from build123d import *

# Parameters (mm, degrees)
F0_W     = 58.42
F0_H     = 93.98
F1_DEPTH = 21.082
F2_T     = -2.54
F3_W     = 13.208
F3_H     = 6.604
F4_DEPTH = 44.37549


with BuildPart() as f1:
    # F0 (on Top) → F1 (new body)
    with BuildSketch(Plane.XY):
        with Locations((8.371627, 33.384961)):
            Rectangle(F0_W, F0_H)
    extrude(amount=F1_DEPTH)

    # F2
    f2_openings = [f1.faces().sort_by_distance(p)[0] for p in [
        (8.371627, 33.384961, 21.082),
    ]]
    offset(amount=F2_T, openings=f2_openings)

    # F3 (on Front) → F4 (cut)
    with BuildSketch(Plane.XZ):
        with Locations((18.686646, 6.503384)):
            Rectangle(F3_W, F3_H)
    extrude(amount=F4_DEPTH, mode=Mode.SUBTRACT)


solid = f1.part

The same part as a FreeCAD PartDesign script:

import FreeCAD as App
import Part
import Sketcher
from FreeCAD import Vector
Q = App.Units.Quantity


def faces_at(feature, points):
    """Names of the faces that lie closest to the given points."""
    faces = feature.Shape.Faces
    near = lambda p: min(range(len(faces)), key=lambda i: faces[i].distToShape(Part.Vertex(*p))[0])
    return sorted({f"Face{near(p) + 1}" for p in points})

doc = App.newDocument("Part")
body = doc.addObject("PartDesign::Body", "Body")

# Sketch on XY plane
sketch1 = body.newObject("Sketcher::SketchObject", "Sketch")
sketch1.AttachmentSupport = (doc.getObject("XY_Plane"), [""])
sketch1.MapMode = "FlatFace"
sketch1.addGeometry(Part.LineSegment(Vector(-21, 80, 0), Vector(-21, -14, 0)), False)
sketch1.addGeometry(Part.LineSegment(Vector(-21, -14, 0), Vector(38, -14, 0)), False)
sketch1.addGeometry(Part.LineSegment(Vector(38, -14, 0), Vector(38, 80, 0)), False)
sketch1.addGeometry(Part.LineSegment(Vector(38, 80, 0), Vector(-21, 80, 0)), False)
sketch1.addConstraint(Sketcher.Constraint("Coincident", 0, 2, 1, 1))
sketch1.addConstraint(Sketcher.Constraint("Coincident", 1, 2, 2, 1))
sketch1.addConstraint(Sketcher.Constraint("Coincident", 2, 2, 3, 1))
sketch1.addConstraint(Sketcher.Constraint("Coincident", 3, 2, 0, 1))
sketch1.addConstraint(Sketcher.Constraint("Vertical", 0))
sketch1.addConstraint(Sketcher.Constraint("Horizontal", 1))
sketch1.addConstraint(Sketcher.Constraint("Vertical", 2))
sketch1.addConstraint(Sketcher.Constraint("Horizontal", 3))
sketch1.addConstraint(Sketcher.Constraint("DistanceX", 1, 1, 1, 2, Q("2.3 in")))
sketch1.addConstraint(Sketcher.Constraint("DistanceY", 0, 2, 0, 1, Q("3.7 in")))
sketch1.addConstraint(Sketcher.Constraint("DistanceY", 0, 2, -1, 1, 13.605039))
sketch1.addConstraint(Sketcher.Constraint("DistanceX", 0, 2, -1, 1, 20.838373))
pad1 = body.newObject("PartDesign::Pad", "Pad")
pad1.Profile = sketch1
pad1.Length = Q("0.83 in")
doc.recompute()

thickness = body.newObject("PartDesign::Thickness", "Thickness")
thickness.Base = (pad1, faces_at(pad1, [(8.372, 33.385, 21.082)]))
thickness.Value = Q("0.1 in")
thickness.Reversed = True
thickness.Join = "Arc"

# Sketch on XZ plane
sketch2 = body.newObject("Sketcher::SketchObject", "Sketch001")
sketch2.AttachmentSupport = (doc.getObject("XZ_Plane"), [""])
sketch2.MapMode = "FlatFace"
sketch2.addGeometry(Part.LineSegment(Vector(12, 10, 0), Vector(12, 3, 0)), False)
sketch2.addGeometry(Part.LineSegment(Vector(12, 3, 0), Vector(25, 3, 0)), False)
sketch2.addGeometry(Part.LineSegment(Vector(25, 3, 0), Vector(25, 10, 0)), False)
sketch2.addGeometry(Part.LineSegment(Vector(25, 10, 0), Vector(12, 10, 0)), False)
sketch2.addConstraint(Sketcher.Constraint("Coincident", 0, 2, 1, 1))
sketch2.addConstraint(Sketcher.Constraint("Coincident", 1, 2, 2, 1))
sketch2.addConstraint(Sketcher.Constraint("Coincident", 2, 2, 3, 1))
sketch2.addConstraint(Sketcher.Constraint("Coincident", 3, 2, 0, 1))
sketch2.addConstraint(Sketcher.Constraint("Vertical", 0))
sketch2.addConstraint(Sketcher.Constraint("Horizontal", 1))
sketch2.addConstraint(Sketcher.Constraint("Vertical", 2))
sketch2.addConstraint(Sketcher.Constraint("Horizontal", 3))
sketch2.addConstraint(Sketcher.Constraint("DistanceX", 1, 1, 1, 2, Q("0.52 in")))
sketch2.addConstraint(Sketcher.Constraint("DistanceY", 0, 2, 0, 1, Q("0.26 in")))
sketch2.addConstraint(Sketcher.Constraint("DistanceX", -1, 1, 0, 2, 12.082646))
sketch2.addConstraint(Sketcher.Constraint("DistanceY", -1, 1, 0, 2, 3.201384))
pocket1 = body.newObject("PartDesign::Pocket", "Pocket")
pocket1.Profile = sketch2
pocket1.Length = 44.37549
pocket1.Reversed = True

doc.recompute()
